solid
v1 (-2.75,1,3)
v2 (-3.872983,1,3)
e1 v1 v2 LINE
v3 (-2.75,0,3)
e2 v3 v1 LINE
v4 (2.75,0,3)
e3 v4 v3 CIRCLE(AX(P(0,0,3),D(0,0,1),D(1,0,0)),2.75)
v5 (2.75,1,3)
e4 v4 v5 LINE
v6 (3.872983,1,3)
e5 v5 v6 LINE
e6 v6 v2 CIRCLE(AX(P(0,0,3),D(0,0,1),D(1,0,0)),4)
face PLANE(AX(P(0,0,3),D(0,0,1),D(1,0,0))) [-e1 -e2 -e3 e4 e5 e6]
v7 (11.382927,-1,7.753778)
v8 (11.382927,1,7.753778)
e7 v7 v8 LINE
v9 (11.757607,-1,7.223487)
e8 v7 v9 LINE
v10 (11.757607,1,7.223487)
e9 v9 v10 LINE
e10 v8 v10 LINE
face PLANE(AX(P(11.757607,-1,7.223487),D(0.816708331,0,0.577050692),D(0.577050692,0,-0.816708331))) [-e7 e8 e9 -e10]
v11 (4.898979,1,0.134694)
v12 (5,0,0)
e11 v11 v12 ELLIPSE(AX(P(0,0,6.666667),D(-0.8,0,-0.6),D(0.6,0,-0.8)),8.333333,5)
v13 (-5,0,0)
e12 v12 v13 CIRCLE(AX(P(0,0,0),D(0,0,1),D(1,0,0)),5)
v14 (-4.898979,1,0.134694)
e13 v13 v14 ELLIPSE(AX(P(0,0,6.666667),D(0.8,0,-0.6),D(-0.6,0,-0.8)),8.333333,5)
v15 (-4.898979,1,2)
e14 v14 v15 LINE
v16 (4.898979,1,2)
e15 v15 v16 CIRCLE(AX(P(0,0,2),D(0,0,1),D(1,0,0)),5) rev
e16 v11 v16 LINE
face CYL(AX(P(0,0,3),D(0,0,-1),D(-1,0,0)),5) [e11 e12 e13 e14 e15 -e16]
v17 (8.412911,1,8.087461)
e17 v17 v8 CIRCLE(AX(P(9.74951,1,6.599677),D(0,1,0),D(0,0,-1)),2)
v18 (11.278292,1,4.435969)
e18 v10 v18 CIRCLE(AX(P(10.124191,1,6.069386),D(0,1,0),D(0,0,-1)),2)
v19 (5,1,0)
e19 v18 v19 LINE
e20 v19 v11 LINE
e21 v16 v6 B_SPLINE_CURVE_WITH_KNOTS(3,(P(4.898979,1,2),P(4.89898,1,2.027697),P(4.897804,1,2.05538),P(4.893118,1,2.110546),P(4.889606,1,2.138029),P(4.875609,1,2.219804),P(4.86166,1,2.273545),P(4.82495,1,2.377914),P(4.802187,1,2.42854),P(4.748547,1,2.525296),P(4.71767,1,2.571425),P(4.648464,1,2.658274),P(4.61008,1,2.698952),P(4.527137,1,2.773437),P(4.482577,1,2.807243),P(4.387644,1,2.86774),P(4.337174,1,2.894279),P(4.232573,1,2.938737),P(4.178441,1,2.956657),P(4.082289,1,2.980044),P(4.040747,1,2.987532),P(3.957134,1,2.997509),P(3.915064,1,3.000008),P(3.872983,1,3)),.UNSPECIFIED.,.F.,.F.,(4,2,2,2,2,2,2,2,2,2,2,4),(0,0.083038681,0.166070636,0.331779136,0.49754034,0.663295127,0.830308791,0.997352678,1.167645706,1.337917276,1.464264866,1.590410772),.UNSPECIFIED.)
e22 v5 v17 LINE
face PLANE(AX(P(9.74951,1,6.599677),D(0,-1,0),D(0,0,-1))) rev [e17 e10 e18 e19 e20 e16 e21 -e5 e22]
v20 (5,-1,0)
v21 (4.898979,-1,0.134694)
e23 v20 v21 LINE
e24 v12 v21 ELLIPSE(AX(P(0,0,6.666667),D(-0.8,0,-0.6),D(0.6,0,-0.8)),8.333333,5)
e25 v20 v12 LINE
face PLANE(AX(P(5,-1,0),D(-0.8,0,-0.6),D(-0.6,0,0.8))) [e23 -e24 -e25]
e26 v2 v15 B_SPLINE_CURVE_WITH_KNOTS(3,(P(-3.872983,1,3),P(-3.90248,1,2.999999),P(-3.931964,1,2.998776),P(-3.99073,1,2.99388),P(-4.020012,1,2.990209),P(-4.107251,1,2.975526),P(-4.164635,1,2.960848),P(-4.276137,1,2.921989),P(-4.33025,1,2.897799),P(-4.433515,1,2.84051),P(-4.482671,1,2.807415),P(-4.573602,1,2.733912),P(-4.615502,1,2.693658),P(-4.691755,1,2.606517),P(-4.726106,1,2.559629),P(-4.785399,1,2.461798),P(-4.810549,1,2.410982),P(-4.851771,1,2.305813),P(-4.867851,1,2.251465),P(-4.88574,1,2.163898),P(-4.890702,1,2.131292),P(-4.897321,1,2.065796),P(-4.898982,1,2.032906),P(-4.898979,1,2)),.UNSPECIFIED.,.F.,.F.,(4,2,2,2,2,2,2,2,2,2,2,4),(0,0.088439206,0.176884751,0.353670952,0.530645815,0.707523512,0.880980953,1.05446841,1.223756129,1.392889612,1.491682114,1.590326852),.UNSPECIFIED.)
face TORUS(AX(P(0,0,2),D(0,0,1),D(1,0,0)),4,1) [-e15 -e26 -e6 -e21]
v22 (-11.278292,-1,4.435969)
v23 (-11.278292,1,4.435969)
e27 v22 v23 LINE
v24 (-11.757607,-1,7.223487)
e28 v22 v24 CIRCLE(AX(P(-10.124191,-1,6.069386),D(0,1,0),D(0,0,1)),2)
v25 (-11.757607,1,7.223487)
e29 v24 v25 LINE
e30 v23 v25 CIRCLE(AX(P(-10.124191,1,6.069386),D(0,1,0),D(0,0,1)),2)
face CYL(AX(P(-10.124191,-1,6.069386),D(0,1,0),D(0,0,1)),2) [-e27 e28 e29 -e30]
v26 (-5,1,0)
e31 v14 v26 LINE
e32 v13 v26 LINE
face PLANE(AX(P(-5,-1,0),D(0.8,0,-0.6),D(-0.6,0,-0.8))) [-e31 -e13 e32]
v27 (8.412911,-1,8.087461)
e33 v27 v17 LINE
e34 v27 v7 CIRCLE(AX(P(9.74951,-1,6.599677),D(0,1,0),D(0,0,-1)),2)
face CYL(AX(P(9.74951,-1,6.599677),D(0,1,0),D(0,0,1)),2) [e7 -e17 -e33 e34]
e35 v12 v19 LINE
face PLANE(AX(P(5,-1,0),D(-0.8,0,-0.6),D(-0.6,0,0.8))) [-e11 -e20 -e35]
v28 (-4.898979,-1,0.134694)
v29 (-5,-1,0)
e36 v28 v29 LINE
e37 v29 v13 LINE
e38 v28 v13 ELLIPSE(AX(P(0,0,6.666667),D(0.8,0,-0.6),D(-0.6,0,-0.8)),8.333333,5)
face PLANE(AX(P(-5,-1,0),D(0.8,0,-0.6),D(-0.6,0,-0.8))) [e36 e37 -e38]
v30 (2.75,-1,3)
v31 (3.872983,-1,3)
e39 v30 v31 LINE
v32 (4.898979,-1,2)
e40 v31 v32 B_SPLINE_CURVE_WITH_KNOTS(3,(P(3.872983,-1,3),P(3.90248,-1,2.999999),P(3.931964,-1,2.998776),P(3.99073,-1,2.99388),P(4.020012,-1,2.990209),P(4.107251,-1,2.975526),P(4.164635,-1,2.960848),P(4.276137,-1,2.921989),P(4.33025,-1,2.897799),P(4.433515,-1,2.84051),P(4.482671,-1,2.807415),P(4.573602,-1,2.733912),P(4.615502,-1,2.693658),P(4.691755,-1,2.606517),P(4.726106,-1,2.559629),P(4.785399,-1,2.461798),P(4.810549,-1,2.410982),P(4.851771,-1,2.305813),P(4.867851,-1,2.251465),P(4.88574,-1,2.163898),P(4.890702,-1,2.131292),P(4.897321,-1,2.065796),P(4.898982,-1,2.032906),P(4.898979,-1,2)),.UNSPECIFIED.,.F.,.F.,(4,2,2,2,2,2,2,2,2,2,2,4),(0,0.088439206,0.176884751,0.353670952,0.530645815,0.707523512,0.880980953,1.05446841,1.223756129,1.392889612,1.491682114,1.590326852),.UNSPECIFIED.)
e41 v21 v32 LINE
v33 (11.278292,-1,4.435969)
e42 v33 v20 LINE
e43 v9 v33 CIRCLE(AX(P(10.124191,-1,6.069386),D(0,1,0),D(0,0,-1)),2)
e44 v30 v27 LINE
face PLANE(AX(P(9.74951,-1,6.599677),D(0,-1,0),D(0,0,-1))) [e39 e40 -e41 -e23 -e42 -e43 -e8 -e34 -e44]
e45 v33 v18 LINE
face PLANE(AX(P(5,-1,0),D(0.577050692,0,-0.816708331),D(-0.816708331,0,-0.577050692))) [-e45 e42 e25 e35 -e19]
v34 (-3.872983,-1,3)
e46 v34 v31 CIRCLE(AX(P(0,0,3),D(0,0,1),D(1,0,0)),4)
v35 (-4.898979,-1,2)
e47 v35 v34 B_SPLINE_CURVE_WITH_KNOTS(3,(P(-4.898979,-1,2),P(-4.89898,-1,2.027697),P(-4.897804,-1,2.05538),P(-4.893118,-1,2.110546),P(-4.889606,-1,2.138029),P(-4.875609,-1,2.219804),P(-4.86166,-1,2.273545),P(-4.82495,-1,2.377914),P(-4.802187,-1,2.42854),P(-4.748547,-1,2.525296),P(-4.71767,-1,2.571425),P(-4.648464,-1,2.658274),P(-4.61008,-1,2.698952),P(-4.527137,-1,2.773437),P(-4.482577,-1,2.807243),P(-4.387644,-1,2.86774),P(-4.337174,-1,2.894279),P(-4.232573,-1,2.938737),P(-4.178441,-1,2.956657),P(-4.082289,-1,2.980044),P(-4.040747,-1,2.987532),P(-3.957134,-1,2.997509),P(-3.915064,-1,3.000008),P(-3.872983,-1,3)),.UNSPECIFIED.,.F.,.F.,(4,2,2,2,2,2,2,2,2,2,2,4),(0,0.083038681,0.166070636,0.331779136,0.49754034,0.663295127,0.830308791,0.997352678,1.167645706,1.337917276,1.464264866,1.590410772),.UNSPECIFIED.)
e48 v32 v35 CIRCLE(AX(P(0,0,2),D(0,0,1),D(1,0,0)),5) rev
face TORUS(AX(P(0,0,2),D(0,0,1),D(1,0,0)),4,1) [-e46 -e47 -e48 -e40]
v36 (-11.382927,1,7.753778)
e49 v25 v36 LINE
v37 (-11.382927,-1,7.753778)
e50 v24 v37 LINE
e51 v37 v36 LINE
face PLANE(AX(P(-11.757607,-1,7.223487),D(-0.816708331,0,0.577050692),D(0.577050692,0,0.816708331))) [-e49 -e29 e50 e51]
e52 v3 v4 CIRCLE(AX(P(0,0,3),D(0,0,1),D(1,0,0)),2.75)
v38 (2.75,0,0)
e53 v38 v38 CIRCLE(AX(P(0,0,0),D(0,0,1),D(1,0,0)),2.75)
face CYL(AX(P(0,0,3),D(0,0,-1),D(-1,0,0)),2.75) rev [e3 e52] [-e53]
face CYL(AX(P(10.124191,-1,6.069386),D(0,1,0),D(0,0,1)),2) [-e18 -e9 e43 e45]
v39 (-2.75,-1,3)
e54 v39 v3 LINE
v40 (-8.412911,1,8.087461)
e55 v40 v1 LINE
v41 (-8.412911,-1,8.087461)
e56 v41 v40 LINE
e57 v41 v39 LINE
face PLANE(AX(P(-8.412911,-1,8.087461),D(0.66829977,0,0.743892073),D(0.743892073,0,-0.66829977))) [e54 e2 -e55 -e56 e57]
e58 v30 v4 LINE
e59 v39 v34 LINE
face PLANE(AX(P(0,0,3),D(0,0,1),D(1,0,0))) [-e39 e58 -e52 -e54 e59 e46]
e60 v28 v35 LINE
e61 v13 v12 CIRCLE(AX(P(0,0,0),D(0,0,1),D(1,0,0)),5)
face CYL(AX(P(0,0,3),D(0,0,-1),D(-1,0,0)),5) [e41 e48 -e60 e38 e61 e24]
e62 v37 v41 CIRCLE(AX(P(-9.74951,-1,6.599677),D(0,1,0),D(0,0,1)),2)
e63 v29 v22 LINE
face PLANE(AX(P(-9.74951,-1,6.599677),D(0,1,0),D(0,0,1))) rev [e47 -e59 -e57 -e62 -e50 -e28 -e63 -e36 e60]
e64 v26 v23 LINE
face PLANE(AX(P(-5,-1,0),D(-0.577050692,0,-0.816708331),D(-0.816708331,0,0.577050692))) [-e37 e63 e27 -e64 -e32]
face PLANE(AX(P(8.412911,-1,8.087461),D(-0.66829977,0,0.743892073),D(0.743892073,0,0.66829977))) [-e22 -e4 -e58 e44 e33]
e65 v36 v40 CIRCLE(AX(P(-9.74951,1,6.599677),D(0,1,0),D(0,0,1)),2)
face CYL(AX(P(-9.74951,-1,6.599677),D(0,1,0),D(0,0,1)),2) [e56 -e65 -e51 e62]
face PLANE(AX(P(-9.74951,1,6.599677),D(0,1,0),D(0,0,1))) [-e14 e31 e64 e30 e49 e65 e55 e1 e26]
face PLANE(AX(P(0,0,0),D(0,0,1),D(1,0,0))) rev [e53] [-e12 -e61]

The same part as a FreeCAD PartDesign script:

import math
import FreeCAD as App
import Part
import Sketcher
from FreeCAD import Vector


def edges_at(feature, points):
    """Names of the edges that pass closest to the given points."""
    edges = feature.Shape.Edges
    near = lambda p: min(range(len(edges)), key=lambda i: edges[i].distToShape(Part.Vertex(*p))[0])
    return sorted({f"Edge{near(p) + 1}" for p in points})

doc = App.newDocument("Part")
params = doc.addObject("Spreadsheet::Sheet", "Params")
for row, (alias, value) in enumerate([
    ("sketch1_diameter", "10 mm"),
    ("sketch1_diameter2", "5.5 mm"),
    ("pad1_length", "3 mm"),
    ("sketch2_radius", "2 mm"),
    ("pad2_length", "1 mm"),
    ("pad2_length2", "1 mm"),
    ("fillet_radius", "1 mm"),
], start=1):
    params.set(f"A{row}", alias)
    params.set(f"B{row}", "=" + value)
    params.setAlias(f"B{row}", alias)

body = doc.addObject("PartDesign::Body", "Body")

sketch1 = body.newObject("Sketcher::SketchObject", "Sketch")
sketch1.AttachmentSupport = (doc.getObject("XY_Plane"), [""])
sketch1.MapMode = "FlatFace"
sketch1.addGeometry([
    Part.Circle(Vector(0, 0, 0), Vector(0, 0, 1), 5),
    Part.Circle(Vector(0, 0, 0), Vector(0, 0, 1), 2.8),
], False)
sketch1.addConstraint([
    Sketcher.Constraint("Coincident", 0, 3, -1, 1),
    Sketcher.Constraint("Coincident", 1, 3, -1, 1),
    Sketcher.Constraint("Diameter", 0, 10.0),
    Sketcher.Constraint("Diameter", 1, 5.5),
])
sketch1.setExpression("Constraints[2]", "Params.sketch1_diameter")
sketch1.setExpression("Constraints[3]", "Params.sketch1_diameter2")
pad1 = body.newObject("PartDesign::Pad", "Pad")
pad1.Profile = sketch1
pad1.setExpression("Length", "Params.pad1_length")

sketch2 = body.newObject("Sketcher::SketchObject", "Sketch001")
sketch2.AttachmentSupport = (doc.getObject("XZ_Plane"), [""])
sketch2.MapMode = "FlatFace"
sketch2.addGeometry([
    Part.LineSegment(Vector(-5, 0, 0), Vector(-11.3, 4.4, 0)),
    Part.ArcOfCircle(Part.Circle(Vector(-10.1, 6.1, 0), Vector(0, 0, 1), 2), math.radians(145), math.radians(235)),
    Part.LineSegment(Vector(-11.8, 7.2, 0), Vector(-11.4, 7.8, 0)),
    Part.ArcOfCircle(Part.Circle(Vector(-9.7, 6.6, 0), Vector(0, 0, 1), 2), math.radians(48), math.radians(145)),
    Part.LineSegment(Vector(-8.4, 8.1, 0), Vector(-2.8, 3, 0)),
    Part.LineSegment(Vector(-2.8, 3, 0), Vector(-5, 0, 0)),
    Part.LineSegment(Vector(2.8, 3, 0), Vector(8.4, 8.1, 0)),
    Part.ArcOfCircle(Part.Circle(Vector(9.7, 6.6, 0), Vector(0, 0, 1), 2), math.radians(35), math.radians(132)),
    Part.LineSegment(Vector(11.4, 7.8, 0), Vector(11.8, 7.2, 0)),
    Part.ArcOfCircle(Part.Circle(Vector(10.1, 6.1, 0), Vector(0, 0, 1), 2), math.radians(-55), math.radians(35)),
    Part.LineSegment(Vector(11.3, 4.4, 0), Vector(5, 0, 0)),
    Part.LineSegment(Vector(5, 0, 0), Vector(2.8, 3, 0)),
], False)
sketch2.addConstraint([
    Sketcher.Constraint("Tangent", 0, 2, 1, 2),
    Sketcher.Constraint("Tangent", 1, 1, 2, 1),
    Sketcher.Constraint("Tangent", 2, 2, 3, 2),
    Sketcher.Constraint("Tangent", 3, 1, 4, 1),
    Sketcher.Constraint("Coincident", 4, 2, 5, 1),
    Sketcher.Constraint("Coincident", 5, 2, 0, 1),
    Sketcher.Constraint("Tangent", 6, 2, 7, 2),
    Sketcher.Constraint("Tangent", 7, 1, 8, 1),
    Sketcher.Constraint("Tangent", 8, 2, 9, 2),
    Sketcher.Constraint("Tangent", 9, 1, 10, 1),
    Sketcher.Constraint("Coincident", 10, 2, 11, 1),
    Sketcher.Constraint("Coincident", 11, 2, 6, 1),
    Sketcher.Constraint("Equal", 1, 3),
    Sketcher.Constraint("Equal", 3, 7),
    Sketcher.Constraint("Equal", 7, 9),
    Sketcher.Constraint("Symmetric", 5, 2, 10, 2, -1, 1),
    Sketcher.Constraint("Symmetric", 3, 3, 7, 3, -2),
    Sketcher.Constraint("Symmetric", 1, 3, 9, 3, -2),
    Sketcher.Constraint("Symmetric", 4, 2, 11, 2, -2),
    Sketcher.Constraint("PointOnObject", 5, 2, -1),
    Sketcher.Constraint("Perpendicular", 0, 2),
    Sketcher.Constraint("Radius", 1, 2.0),
    Sketcher.Constraint("DistanceY", -1, 1, 4, 2, 3.0),
    Sketcher.Constraint("DistanceX", 5, 2, -1, 1, 5.0),
    Sketcher.Constraint("DistanceX", 4, 2, 11, 2, 5.5),
    Sketcher.Constraint("DistanceX", 1, 3, 7, 3, 19.873701),
    Sketcher.Constraint("DistanceX", 0, 2, 1, 3, 1.154101),
    Sketcher.Constraint("DistanceX", 1, 1, 9, 3, 21.881798),
])
sketch2.setExpression("Constraints[21]", "Params.sketch2_radius")
pad2 = body.newObject("PartDesign::Pad", "Pad001")
pad2.Profile = sketch2
pad2.Type = "TwoLengths"
pad2.setExpression("Length", "Params.pad2_length")
pad2.setExpression("Length2", "Params.pad2_length2")
pad2.Reversed = True
doc.recompute()

fillet = body.newObject("PartDesign::Fillet", "Fillet")
fillet.Base = (pad2, edges_at(pad2, [(0, 5, 3), (0, -5, 3)]))
fillet.setExpression("Radius", "Params.fillet_radius")

doc.recompute()
